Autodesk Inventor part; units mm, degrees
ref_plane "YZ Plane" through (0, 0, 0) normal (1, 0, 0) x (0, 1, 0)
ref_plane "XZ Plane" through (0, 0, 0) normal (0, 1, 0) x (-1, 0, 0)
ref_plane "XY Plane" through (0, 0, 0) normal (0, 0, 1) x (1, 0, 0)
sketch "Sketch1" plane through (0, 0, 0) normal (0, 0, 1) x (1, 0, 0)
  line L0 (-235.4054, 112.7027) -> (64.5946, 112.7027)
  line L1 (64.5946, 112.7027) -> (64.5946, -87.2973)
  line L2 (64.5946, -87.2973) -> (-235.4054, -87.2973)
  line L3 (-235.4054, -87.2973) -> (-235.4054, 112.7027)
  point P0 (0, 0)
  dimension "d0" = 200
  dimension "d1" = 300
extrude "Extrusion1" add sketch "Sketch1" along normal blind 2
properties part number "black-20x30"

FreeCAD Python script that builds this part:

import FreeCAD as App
import Part
import Sketcher
from FreeCAD import Vector


def add_polygon(sketch, points):
    """Adds a closed chain of lines whose ends are joined by coincident constraints."""
    first, n = sketch.GeometryCount, len(points)
    for a, b in zip(points, points[1:] + points[:1]):
        sketch.addGeometry(Part.LineSegment(App.Vector(*a, 0), App.Vector(*b, 0)), False)
    for i in range(n):
        sketch.addConstraint(Sketcher.Constraint("Coincident", first + i, 2, first + (i + 1) % n, 1))

doc = App.newDocument("Part")
params = doc.addObject("Spreadsheet::Sheet", "Params")
for row, (alias, value) in enumerate([
    ("sketch1_width", "300 mm"),
    ("sketch1_height", "200 mm"),
    ("pad1_length", "2 mm"),
], start=1):
    params.set(f"A{row}", alias)
    params.set(f"B{row}", "=" + value)
    params.setAlias(f"B{row}", alias)

body = doc.addObject("PartDesign::Body", "Body")

sketch1 = body.newObject("Sketcher::SketchObject", "Sketch")
sketch1.AttachmentSupport = (doc.getObject("XY_Plane"), [""])
sketch1.MapMode = "FlatFace"
add_polygon(sketch1, [(65, 113), (-235, 113), (-235, -87), (65, -87)])
sketch1.addConstraint([
    Sketcher.Constraint("Horizontal", 0),
    Sketcher.Constraint("Vertical", 1),
    Sketcher.Constraint("Horizontal", 2),
    Sketcher.Constraint("Vertical", 3),
    Sketcher.Constraint("DistanceX", 0, 2, 0, 1, 300.0),
    Sketcher.Constraint("DistanceY", 1, 2, 1, 1, 200.0),
    Sketcher.Constraint("DistanceX", 0, 2, -1, 1, 235.4054),
    Sketcher.Constraint("DistanceY", -1, 1, 0, 2, 112.7027),
])
sketch1.setExpression("Constraints[8]", "Params.sketch1_width")
sketch1.setExpression("Constraints[9]", "Params.sketch1_height")
pad1 = body.newObject("PartDesign::Pad", "Pad")
pad1.Profile = sketch1
pad1.setExpression("Length", "Params.pad1_length")

doc.recompute()
